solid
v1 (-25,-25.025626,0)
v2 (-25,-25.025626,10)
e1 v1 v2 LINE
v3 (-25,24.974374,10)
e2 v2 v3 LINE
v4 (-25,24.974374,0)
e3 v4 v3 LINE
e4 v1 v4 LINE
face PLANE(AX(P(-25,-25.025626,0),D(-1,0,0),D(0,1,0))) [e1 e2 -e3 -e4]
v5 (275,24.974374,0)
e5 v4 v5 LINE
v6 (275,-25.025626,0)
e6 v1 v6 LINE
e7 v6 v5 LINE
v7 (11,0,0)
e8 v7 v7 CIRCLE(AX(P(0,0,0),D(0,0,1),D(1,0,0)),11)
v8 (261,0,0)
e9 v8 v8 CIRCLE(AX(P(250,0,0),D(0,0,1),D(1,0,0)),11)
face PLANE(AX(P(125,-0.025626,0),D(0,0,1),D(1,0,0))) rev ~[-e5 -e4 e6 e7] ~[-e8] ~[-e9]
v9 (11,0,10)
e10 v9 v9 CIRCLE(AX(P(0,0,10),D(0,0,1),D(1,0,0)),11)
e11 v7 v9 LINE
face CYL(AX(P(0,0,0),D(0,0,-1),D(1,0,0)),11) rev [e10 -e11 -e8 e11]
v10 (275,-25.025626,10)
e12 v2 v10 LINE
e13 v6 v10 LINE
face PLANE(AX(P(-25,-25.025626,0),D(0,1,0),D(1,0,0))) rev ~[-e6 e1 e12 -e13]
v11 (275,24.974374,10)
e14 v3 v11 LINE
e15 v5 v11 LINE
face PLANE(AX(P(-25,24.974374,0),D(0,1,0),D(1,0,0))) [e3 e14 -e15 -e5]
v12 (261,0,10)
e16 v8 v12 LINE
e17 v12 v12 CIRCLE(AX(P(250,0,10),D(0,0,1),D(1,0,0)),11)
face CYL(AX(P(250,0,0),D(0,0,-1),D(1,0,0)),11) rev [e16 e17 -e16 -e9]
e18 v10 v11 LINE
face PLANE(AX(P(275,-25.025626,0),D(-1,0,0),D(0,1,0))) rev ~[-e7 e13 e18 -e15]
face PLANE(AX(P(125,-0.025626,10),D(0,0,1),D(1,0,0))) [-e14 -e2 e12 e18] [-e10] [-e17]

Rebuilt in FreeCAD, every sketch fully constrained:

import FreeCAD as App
import Part
import Sketcher
from FreeCAD import Vector


def add_polygon(sketch, points):
    """Adds a closed chain of lines whose ends are joined by coincident constraints."""
    first, n = sketch.GeometryCount, len(points)
    for a, b in zip(points, points[1:] + points[:1]):
        sketch.addGeometry(Part.LineSegment(App.Vector(*a, 0), App.Vector(*b, 0)), False)
    for i in range(n):
        sketch.addConstraint(Sketcher.Constraint("Coincident", first + i, 2, first + (i + 1) % n, 1))

doc = App.newDocument("Part")
params = doc.addObject("Spreadsheet::Sheet", "Params")
for row, (alias, value) in enumerate([
    ("sketch1_diameter", "22 mm"),
    ("sketch1_width", "300 mm"),
    ("sketch1_height", "50 mm"),
    ("pad1_length", "10 mm"),
], start=1):
    params.set(f"A{row}", alias)
    params.set(f"B{row}", "=" + value)
    params.setAlias(f"B{row}", alias)

body = doc.addObject("PartDesign::Body", "Body")

sketch1 = body.newObject("Sketcher::SketchObject", "Sketch")
sketch1.AttachmentSupport = (doc.getObject("XY_Plane"), [""])
sketch1.MapMode = "FlatFace"
add_polygon(sketch1, [(-25, 25), (-25, -25), (275, -25), (275, 25)])
sketch1.addGeometry(Part.Circle(Vector(0, 0, 0), Vector(0, 0, 1), 11), False)
sketch1.addGeometry(Part.Circle(Vector(250, 0, 0), Vector(0, 0, 1), 11), False)
sketch1.addConstraint([
    Sketcher.Constraint("Vertical", 0),
    Sketcher.Constraint("Horizontal", 1),
    Sketcher.Constraint("Vertical", 2),
    Sketcher.Constraint("Horizontal", 3),
    Sketcher.Constraint("Coincident", 4, 3, -1, 1),
    Sketcher.Constraint("Equal", 4, 5),
    Sketcher.Constraint("PointOnObject", 5, 3, -1),
    Sketcher.Constraint("Diameter", 4, 22.0),
    Sketcher.Constraint("DistanceX", 1, 1, 1, 2, 300.0),
    Sketcher.Constraint("DistanceY", 0, 2, 0, 1, 50.0),
    Sketcher.Constraint("DistanceX", -1, 1, 5, 3, 250.0),
    Sketcher.Constraint("DistanceX", 0, 2, -1, 1, 25.0),
    Sketcher.Constraint("DistanceY", 0, 2, -1, 1, 25.025626),
])
sketch1.setExpression("Constraints[11]", "Params.sketch1_diameter")
sketch1.setExpression("Constraints[12]", "Params.sketch1_width")
sketch1.setExpression("Constraints[13]", "Params.sketch1_height")
pad1 = body.newObject("PartDesign::Pad", "Pad")
pad1.Profile = sketch1
pad1.setExpression("Length", "Params.pad1_length")

doc.recompute()
